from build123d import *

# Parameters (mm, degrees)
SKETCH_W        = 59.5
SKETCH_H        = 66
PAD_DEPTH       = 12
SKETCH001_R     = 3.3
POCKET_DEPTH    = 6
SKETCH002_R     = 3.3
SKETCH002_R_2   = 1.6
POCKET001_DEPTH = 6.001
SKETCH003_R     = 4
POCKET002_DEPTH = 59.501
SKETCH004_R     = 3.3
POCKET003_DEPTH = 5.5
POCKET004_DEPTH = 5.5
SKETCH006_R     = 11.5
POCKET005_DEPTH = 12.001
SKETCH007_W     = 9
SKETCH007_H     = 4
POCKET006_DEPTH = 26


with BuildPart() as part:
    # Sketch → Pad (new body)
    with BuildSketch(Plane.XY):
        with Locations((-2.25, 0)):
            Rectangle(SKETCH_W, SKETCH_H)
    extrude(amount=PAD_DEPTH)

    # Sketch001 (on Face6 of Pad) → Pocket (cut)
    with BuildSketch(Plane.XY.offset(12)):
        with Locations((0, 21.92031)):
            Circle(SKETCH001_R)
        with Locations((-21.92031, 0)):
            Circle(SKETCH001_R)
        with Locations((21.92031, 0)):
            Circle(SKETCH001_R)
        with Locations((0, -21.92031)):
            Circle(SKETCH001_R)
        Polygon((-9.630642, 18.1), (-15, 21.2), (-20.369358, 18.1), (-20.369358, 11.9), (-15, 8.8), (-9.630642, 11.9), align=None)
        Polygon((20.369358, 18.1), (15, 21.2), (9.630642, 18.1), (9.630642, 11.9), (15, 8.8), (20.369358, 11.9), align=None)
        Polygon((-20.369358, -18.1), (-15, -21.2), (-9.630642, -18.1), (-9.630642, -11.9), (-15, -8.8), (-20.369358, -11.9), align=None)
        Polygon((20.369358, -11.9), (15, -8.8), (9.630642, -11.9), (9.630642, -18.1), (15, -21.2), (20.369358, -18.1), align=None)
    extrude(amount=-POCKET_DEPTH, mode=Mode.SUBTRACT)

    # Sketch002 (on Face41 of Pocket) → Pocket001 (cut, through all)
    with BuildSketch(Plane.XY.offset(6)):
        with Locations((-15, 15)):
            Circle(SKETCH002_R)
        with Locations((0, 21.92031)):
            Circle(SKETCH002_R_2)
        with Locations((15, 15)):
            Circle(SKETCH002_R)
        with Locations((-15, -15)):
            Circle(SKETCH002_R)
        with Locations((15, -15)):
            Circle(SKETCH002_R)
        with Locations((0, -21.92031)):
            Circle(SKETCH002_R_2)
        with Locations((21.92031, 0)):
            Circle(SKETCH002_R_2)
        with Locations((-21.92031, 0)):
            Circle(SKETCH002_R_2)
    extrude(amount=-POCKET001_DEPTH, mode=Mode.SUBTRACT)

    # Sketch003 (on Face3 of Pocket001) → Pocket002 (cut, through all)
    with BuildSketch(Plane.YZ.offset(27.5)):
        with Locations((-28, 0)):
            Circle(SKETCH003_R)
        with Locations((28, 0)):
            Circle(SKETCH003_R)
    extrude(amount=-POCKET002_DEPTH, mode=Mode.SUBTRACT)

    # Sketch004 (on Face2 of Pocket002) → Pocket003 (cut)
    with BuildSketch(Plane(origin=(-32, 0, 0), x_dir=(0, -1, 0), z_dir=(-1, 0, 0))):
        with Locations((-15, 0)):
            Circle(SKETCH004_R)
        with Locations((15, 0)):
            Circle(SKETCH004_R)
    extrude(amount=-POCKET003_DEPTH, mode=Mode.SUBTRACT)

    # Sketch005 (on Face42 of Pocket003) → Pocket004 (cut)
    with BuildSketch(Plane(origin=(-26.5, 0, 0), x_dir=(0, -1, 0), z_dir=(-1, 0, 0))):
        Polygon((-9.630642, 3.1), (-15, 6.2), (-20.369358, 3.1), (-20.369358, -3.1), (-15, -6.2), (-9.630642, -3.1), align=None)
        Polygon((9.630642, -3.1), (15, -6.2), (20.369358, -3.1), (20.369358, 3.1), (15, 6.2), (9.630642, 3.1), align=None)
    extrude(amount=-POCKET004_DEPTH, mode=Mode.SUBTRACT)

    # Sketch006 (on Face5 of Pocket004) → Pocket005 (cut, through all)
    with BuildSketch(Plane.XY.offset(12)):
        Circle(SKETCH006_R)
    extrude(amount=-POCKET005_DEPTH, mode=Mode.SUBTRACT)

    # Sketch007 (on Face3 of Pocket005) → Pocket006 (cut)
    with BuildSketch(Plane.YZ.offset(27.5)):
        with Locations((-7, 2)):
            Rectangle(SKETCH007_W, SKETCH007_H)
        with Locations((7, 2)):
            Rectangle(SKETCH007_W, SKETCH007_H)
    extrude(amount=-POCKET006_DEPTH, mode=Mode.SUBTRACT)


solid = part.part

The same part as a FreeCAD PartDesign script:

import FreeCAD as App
import Part
import Sketcher
Q = App.Units.Quantity

doc = App.newDocument("Part")
body = doc.addObject("PartDesign::Body", "Body")

# Sketch on XY plane
sketch1 = body.newObject("Sketcher::SketchObject", "Sketch")
sketch1.AttachmentSupport = (doc.getObject("XY_Plane"), [""])
sketch1.MapMode = "FlatFace"
sketch1.addGeometry([
    Part.LineSegment(App.Vector(-32, 33, 0), App.Vector(-32, -33, 0)),
    Part.LineSegment(App.Vector(-32, -33, 0), App.Vector(28, -33, 0)),
    Part.LineSegment(App.Vector(28, -33, 0), App.Vector(28, 33, 0)),
    Part.LineSegment(App.Vector(28, 33, 0), App.Vector(-32, 33, 0)),
], False)
sketch1.addConstraint([
    Sketcher.Constraint("Coincident", 0, 2, 1, 1),
    Sketcher.Constraint("Coincident", 1, 2, 2, 1),
    Sketcher.Constraint("Coincident", 2, 2, 3, 1),
    Sketcher.Constraint("Coincident", 3, 2, 0, 1),
    Sketcher.Constraint("Vertical", 0),
    Sketcher.Constraint("Horizontal", 1),
    Sketcher.Constraint("Vertical", 2),
    Sketcher.Constraint("Horizontal", 3),
    Sketcher.Constraint("DistanceY", 0, 2, 0, 1, 66.0),
    Sketcher.Constraint("DistanceX", 1, 1, 1, 2, 59.5),
    Sketcher.Constraint("DistanceX", 0, 2, -1, 1, 32.0),
    Sketcher.Constraint("DistanceY", 0, 2, -1, 1, 33.0),
])
pad1 = body.newObject("PartDesign::Pad", "Pad")
pad1.Profile = sketch1
pad1.Length = 12

# Sketch on XY plane
sketch2 = body.newObject("Sketcher::SketchObject", "Sketch001")
sketch2.AttachmentSupport = (doc.getObject("XY_Plane"), [""])
sketch2.MapMode = "FlatFace"
sketch2.AttachmentOffset = App.Placement(App.Vector(0, 0, 12), App.Rotation())
sketch2.addGeometry([
    Part.Circle(App.Vector(0, 21.9, 0), App.Vector(0, 0, 1), 3.3),  # 0
    Part.Circle(App.Vector(-21.9, 0, 0), App.Vector(0, 0, 1), 3.3),  # 1
    Part.Circle(App.Vector(21.9, 0, 0), App.Vector(0, 0, 1), 3.3),  # 2
    Part.Circle(App.Vector(0, -21.9, 0), App.Vector(0, 0, 1), 3.3),  # 3
    Part.LineSegment(App.Vector(-9.6, 18.1, 0), App.Vector(-15, 21.2, 0)),  # 4
    Part.LineSegment(App.Vector(-15, 21.2, 0), App.Vector(-20.4, 18.1, 0)),  # 5
    Part.LineSegment(App.Vector(-20.4, 18.1, 0), App.Vector(-20.4, 11.9, 0)),  # 6
    Part.LineSegment(App.Vector(-20.4, 11.9, 0), App.Vector(-15, 8.8, 0)),  # 7
    Part.LineSegment(App.Vector(-15, 8.8, 0), App.Vector(-9.6, 11.9, 0)),  # 8
    Part.LineSegment(App.Vector(-9.6, 11.9, 0), App.Vector(-9.6, 18.1, 0)),  # 9
    Part.LineSegment(App.Vector(20.4, 18.1, 0), App.Vector(15, 21.2, 0)),  # 10
    Part.LineSegment(App.Vector(15, 21.2, 0), App.Vector(9.6, 18.1, 0)),  # 11
    Part.LineSegment(App.Vector(9.6, 18.1, 0), App.Vector(9.6, 11.9, 0)),  # 12
    Part.LineSegment(App.Vector(9.6, 11.9, 0), App.Vector(15, 8.8, 0)),  # 13
    Part.LineSegment(App.Vector(15, 8.8, 0), App.Vector(20.4, 11.9, 0)),  # 14
    Part.LineSegment(App.Vector(20.4, 11.9, 0), App.Vector(20.4, 18.1, 0)),  # 15
    Part.LineSegment(App.Vector(-20.4, -18.1, 0), App.Vector(-15, -21.2, 0)),  # 16
    Part.LineSegment(App.Vector(-15, -21.2, 0), App.Vector(-9.6, -18.1, 0)),  # 17
    Part.LineSegment(App.Vector(-9.6, -18.1, 0), App.Vector(-9.6, -11.9, 0)),  # 18
    Part.LineSegment(App.Vector(-9.6, -11.9, 0), App.Vector(-15, -8.8, 0)),  # 19
    Part.LineSegment(App.Vector(-15, -8.8, 0), App.Vector(-20.4, -11.9, 0)),  # 20
    Part.LineSegment(App.Vector(-20.4, -11.9, 0), App.Vector(-20.4, -18.1, 0)),  # 21
    Part.LineSegment(App.Vector(20.4, -11.9, 0), App.Vector(15, -8.8, 0)),  # 22
    Part.LineSegment(App.Vector(15, -8.8, 0), App.Vector(9.6, -11.9, 0)),  # 23
    Part.LineSegment(App.Vector(9.6, -11.9, 0), App.Vector(9.6, -18.1, 0)),  # 24
    Part.LineSegment(App.Vector(9.6, -18.1, 0), App.Vector(15, -21.2, 0)),  # 25
    Part.LineSegment(App.Vector(15, -21.2, 0), App.Vector(20.4, -18.1, 0)),  # 26
    Part.LineSegment(App.Vector(20.4, -18.1, 0), App.Vector(20.4, -11.9, 0)),  # 27
], False)
sketch2.addConstraint([
    Sketcher.Constraint("Coincident", 4, 2, 5, 1),
    Sketcher.Constraint("Coincident", 5, 2, 6, 1),
    Sketcher.Constraint("Coincident", 6, 2, 7, 1),
    Sketcher.Constraint("Coincident", 7, 2, 8, 1),
    Sketcher.Constraint("Coincident", 8, 2, 9, 1),
    Sketcher.Constraint("Coincident", 9, 2, 4, 1),
    Sketcher.Constraint("Coincident", 10, 2, 11, 1),
    Sketcher.Constraint("Coincident", 11, 2, 12, 1),
    Sketcher.Constraint("Coincident", 12, 2, 13, 1),
    Sketcher.Constraint("Coincident", 13, 2, 14, 1),
    Sketcher.Constraint("Coincident", 14, 2, 15, 1),
    Sketcher.Constraint("Coincident", 15, 2, 10, 1),
    Sketcher.Constraint("Coincident", 16, 2, 17, 1),
    Sketcher.Constraint("Coincident", 17, 2, 18, 1),
    Sketcher.Constraint("Coincident", 18, 2, 19, 1),
    Sketcher.Constraint("Coincident", 19, 2, 20, 1),
    Sketcher.Constraint("Coincident", 20, 2, 21, 1),
    Sketcher.Constraint("Coincident", 21, 2, 16, 1),
    Sketcher.Constraint("Coincident", 22, 2, 23, 1),
    Sketcher.Constraint("Coincident", 23, 2, 24, 1),
    Sketcher.Constraint("Coincident", 24, 2, 25, 1),
    Sketcher.Constraint("Coincident", 25, 2, 26, 1),
    Sketcher.Constraint("Coincident", 26, 2, 27, 1),
    Sketcher.Constraint("Coincident", 27, 2, 22, 1),
    Sketcher.Constraint("Vertical", 6),
    Sketcher.Constraint("Vertical", 9),
    Sketcher.Constraint("Vertical", 12),
    Sketcher.Constraint("Vertical", 15),
    Sketcher.Constraint("Vertical", 18),
    Sketcher.Constraint("Vertical", 21),
    Sketcher.Constraint("Vertical", 24),
    Sketcher.Constraint("Vertical", 27),
    Sketcher.Constraint("Equal", 0, 1),
    Sketcher.Constraint("Equal", 1, 2),
    Sketcher.Constraint("Equal", 2, 3),
    Sketcher.Constraint("Symmetric", 1, 3, 2, 3, -1, 1),
    Sketcher.Constraint("Symmetric", 0, 3, 3, 3, -1, 1),
    Sketcher.Constraint("Symmetric", 10, 2, 16, 2, -1, 1),
    Sketcher.Constraint("Symmetric", 11, 2, 17, 2, -1, 1),
    Sketcher.Constraint("Symmetric", 13, 2, 19, 2, -1, 1),
    Sketcher.Constraint("Symmetric", 14, 2, 20, 2, -1, 1),
    Sketcher.Constraint("Symmetric", 7, 2, 22, 2, -1, 1),
    Sketcher.Constraint("Symmetric", 8, 2, 23, 2, -1, 1),
    Sketcher.Constraint("Symmetric", 4, 2, 25, 2, -1, 1),
    Sketcher.Constraint("Symmetric", 5, 2, 26, 2, -1, 1),
    Sketcher.Constraint("Symmetric", 4, 2, 10, 2, -2),
    Sketcher.Constraint("Symmetric", 9, 2, 11, 2, -2),
    Sketcher.Constraint("Symmetric", 7, 2, 13, 2, -2),
    Sketcher.Constraint("Symmetric", 6, 2, 14, 2, -2),
    Sketcher.Constraint("PointOnObject", 0, 3, -2),
    Sketcher.Constraint("PointOnObject", 1, 3, -1),
    Sketcher.Constraint("Parallel", 4, 7),
    Sketcher.Constraint("Parallel", 5, 8),
    Sketcher.Constraint("Parallel", 7, 10),
    Sketcher.Constraint("Parallel", 8, 11),
    Sketcher.Constraint("Parallel", 10, 13),
    Sketcher.Constraint("Parallel", 13, 16),
    Sketcher.Constraint("Parallel", 16, 19),
    Sketcher.Constraint("Parallel", 19, 22),
    Sketcher.Constraint("Parallel", 22, 25),
    Sketcher.Constraint("Horizontal", 6, 2, 8, 2),
    Sketcher.Constraint("Horizontal", 5, 2, 9, 2),
    Sketcher.Constraint("Diameter", 0, 6.6),
    Sketcher.Constraint("Angle", 4, Q("150.000002 deg")),
    Sketcher.Constraint("DistanceY", 6, 2, 6, 1, 6.2),
    Sketcher.Constraint("DistanceX", 4, 2, -1, 1, 15.0),
    Sketcher.Constraint("DistanceY", 16, 2, 7, 2, 30.0),
    Sketcher.Constraint("Distance", 4, 6.2),
    Sketcher.Constraint("DistanceY", -1, 1, 0, 3, 21.92031),
    Sketcher.Constraint("DistanceX", 1, 3, -1, 1, 21.92031),
])
pocket1 = body.newObject("PartDesign::Pocket", "Pocket")
pocket1.Profile = sketch2
pocket1.Length = 6

# Sketch on XY plane
sketch3 = body.newObject("Sketcher::SketchObject", "Sketch002")
sketch3.AttachmentSupport = (doc.getObject("XY_Plane"), [""])
sketch3.MapMode = "FlatFace"
sketch3.AttachmentOffset = App.Placement(App.Vector(0, 0, 6), App.Rotation())
sketch3.addGeometry([
    Part.Circle(App.Vector(-15, 15, 0), App.Vector(0, 0, 1), 3.3),  # 0
    Part.Circle(App.Vector(0, 21.9, 0), App.Vector(0, 0, 1), 1.6),  # 1
    Part.Circle(App.Vector(15, 15, 0), App.Vector(0, 0, 1), 3.3),  # 2
    Part.Circle(App.Vector(-15, -15, 0), App.Vector(0, 0, 1), 3.3),  # 3
    Part.Circle(App.Vector(15, -15, 0), App.Vector(0, 0, 1), 3.3),  # 4
    Part.Circle(App.Vector(0, -21.9, 0), App.Vector(0, 0, 1), 1.6),  # 5
    Part.Circle(App.Vector(21.9, 0, 0), App.Vector(0, 0, 1), 1.6),  # 6
    Part.Circle(App.Vector(-21.9, 0, 0), App.Vector(0, 0, 1), 1.6),  # 7
], False)
sketch3.addConstraint([
    Sketcher.Constraint("Equal", 0, 2),
    Sketcher.Constraint("Equal", 2, 3),
    Sketcher.Constraint("Equal", 3, 4),
    Sketcher.Constraint("Equal", 1, 5),
    Sketcher.Constraint("Equal", 5, 6),
    Sketcher.Constraint("Equal", 6, 7),
    Sketcher.Constraint("Symmetric", 2, 3, 3, 3, -1, 1),
    Sketcher.Constraint("Symmetric", 0, 3, 4, 3, -1, 1),
    Sketcher.Constraint("Symmetric", 1, 3, 5, 3, -1, 1),
    Sketcher.Constraint("Symmetric", 6, 3, 7, 3, -1, 1),
    Sketcher.Constraint("Symmetric", 0, 3, 2, 3, -2),
    Sketcher.Constraint("PointOnObject", 1, 3, -2),
    Sketcher.Constraint("PointOnObject", 6, 3, -1),
    Sketcher.Constraint("Diameter", 0, 6.6),
    Sketcher.Constraint("Diameter", 1, 3.2),
    Sketcher.Constraint("DistanceX", 0, 3, -1, 1, 15.0),
    Sketcher.Constraint("DistanceY", -1, 1, 0, 3, 15.0),
    Sketcher.Constraint("DistanceY", -1, 1, 1, 3, 21.92031),
    Sketcher.Constraint("DistanceX", -1, 1, 6, 3, 21.92031),
])
pocket2 = body.newObject("PartDesign::Pocket", "Pocket001")
pocket2.Profile = sketch3
pocket2.Type = "ThroughAll"

# Sketch on YZ plane
sketch4 = body.newObject("Sketcher::SketchObject", "Sketch003")
sketch4.AttachmentSupport = (doc.getObject("YZ_Plane"), [""])
sketch4.MapMode = "FlatFace"
sketch4.AttachmentOffset = App.Placement(App.Vector(0, 0, 27.5), App.Rotation())
sketch4.addGeometry([
    Part.Circle(App.Vector(-28, 0, 0), App.Vector(0, 0, 1), 4),
    Part.Circle(App.Vector(28, 0, 0), App.Vector(0, 0, 1), 4),
], False)
sketch4.addConstraint([
    Sketcher.Constraint("Equal", 0, 1),
    Sketcher.Constraint("Symmetric", 0, 3, 1, 3, -1, 1),
    Sketcher.Constraint("PointOnObject", 0, 3, -1),
    Sketcher.Constraint("Diameter", 0, 8.0),
    Sketcher.Constraint("DistanceX", 0, 3, -1, 1, 28.0),
])
pocket3 = body.newObject("PartDesign::Pocket", "Pocket002")
pocket3.Profile = sketch4
pocket3.Type = "ThroughAll"

# Sketch on YZ plane
sketch5 = body.newObject("Sketcher::SketchObject", "Sketch004")
sketch5.AttachmentSupport = (doc.getObject("YZ_Plane"), [""])
sketch5.MapMode = "FlatFace"
sketch5.AttachmentOffset = App.Placement(App.Vector(0, 0, -32), App.Rotation())
sketch5.addGeometry([
    Part.Circle(App.Vector(15, 0, 0), App.Vector(0, 0, 1), 3.3),
    Part.Circle(App.Vector(-15, 0, 0), App.Vector(0, 0, 1), 3.3),
], False)
sketch5.addConstraint([
    Sketcher.Constraint("Equal", 0, 1),
    Sketcher.Constraint("Symmetric", 0, 3, 1, 3, -1, 1),
    Sketcher.Constraint("PointOnObject", 0, 3, -1),
    Sketcher.Constraint("Diameter", 0, 6.6),
    Sketcher.Constraint("DistanceX", -1, 1, 0, 3, 15.0),
])
pocket4 = body.newObject("PartDesign::Pocket", "Pocket003")
pocket4.Profile = sketch5
pocket4.Length = 5.5
pocket4.Reversed = True

# Sketch on YZ plane
sketch6 = body.newObject("Sketcher::SketchObject", "Sketch005")
sketch6.AttachmentSupport = (doc.getObject("YZ_Plane"), [""])
sketch6.MapMode = "FlatFace"
sketch6.AttachmentOffset = App.Placement(App.Vector(0, 0, -26.5), App.Rotation())
sketch6.addGeometry([
    Part.LineSegment(App.Vector(10, 3, 0), App.Vector(15, 6, 0)),  # 0
    Part.LineSegment(App.Vector(15, 6, 0), App.Vector(20, 3, 0)),  # 1
    Part.LineSegment(App.Vector(20, 3, 0), App.Vector(20, -3, 0)),  # 2
    Part.LineSegment(App.Vector(20, -3, 0), App.Vector(15, -6, 0)),  # 3
    Part.LineSegment(App.Vector(15, -6, 0), App.Vector(10, -3, 0)),  # 4
    Part.LineSegment(App.Vector(10, -3, 0), App.Vector(10, 3, 0)),  # 5
    Part.LineSegment(App.Vector(-10, -3, 0), App.Vector(-15, -6, 0)),  # 6
    Part.LineSegment(App.Vector(-15, -6, 0), App.Vector(-20, -3, 0)),  # 7
    Part.LineSegment(App.Vector(-20, -3, 0), App.Vector(-20, 3, 0)),  # 8
    Part.LineSegment(App.Vector(-20, 3, 0), App.Vector(-15, 6, 0)),  # 9
    Part.LineSegment(App.Vector(-15, 6, 0), App.Vector(-10, 3, 0)),  # 10
    Part.LineSegment(App.Vector(-10, 3, 0), App.Vector(-10, -3, 0)),  # 11
], False)
sketch6.addConstraint([
    Sketcher.Constraint("Coincident", 0, 2, 1, 1),
    Sketcher.Constraint("Coincident", 1, 2, 2, 1),
    Sketcher.Constraint("Coincident", 2, 2, 3, 1),
    Sketcher.Constraint("Coincident", 3, 2, 4, 1),
    Sketcher.Constraint("Coincident", 4, 2, 5, 1),
    Sketcher.Constraint("Coincident", 5, 2, 0, 1),
    Sketcher.Constraint("Coincident", 6, 2, 7, 1),
    Sketcher.Constraint("Coincident", 7, 2, 8, 1),
    Sketcher.Constraint("Coincident", 8, 2, 9, 1),
    Sketcher.Constraint("Coincident", 9, 2, 10, 1),
    Sketcher.Constraint("Coincident", 10, 2, 11, 1),
    Sketcher.Constraint("Coincident", 11, 2, 6, 1),
    Sketcher.Constraint("Vertical", 2),
    Sketcher.Constraint("Vertical", 5),
    Sketcher.Constraint("Vertical", 8),
    Sketcher.Constraint("Vertical", 11),
    Sketcher.Constraint("Symmetric", 0, 2, 6, 2, -1, 1),
    Sketcher.Constraint("Symmetric", 1, 2, 7, 2, -1, 1),
    Sketcher.Constraint("Symmetric", 3, 2, 9, 2, -1, 1),
    Sketcher.Constraint("Symmetric", 4, 2, 10, 2, -1, 1),
    Sketcher.Constraint("Symmetric", 3, 2, 6, 2, -2),
    Sketcher.Constraint("Parallel", 0, 3),
    Sketcher.Constraint("Parallel", 1, 4),
    Sketcher.Constraint("Parallel", 3, 6),
    Sketcher.Constraint("Parallel", 6, 9),
    Sketcher.Constraint("Horizontal", 2, 2, 4, 2),
    Sketcher.Constraint("Horizontal", 1, 2, 5, 2),
    Sketcher.Constraint("Angle", 0, Q("29.999998 deg")),
    Sketcher.Constraint("DistanceY", 2, 2, 2, 1, 6.2),
    Sketcher.Constraint("DistanceX", -1, 1, 0, 2, 15.0),
    Sketcher.Constraint("Distance", 0, 6.2),
])
pocket5 = body.newObject("PartDesign::Pocket", "Pocket004")
pocket5.Profile = sketch6
pocket5.Length = 5.5
pocket5.Reversed = True

# Sketch on XY plane
sketch7 = body.newObject("Sketcher::SketchObject", "Sketch006")
sketch7.AttachmentSupport = (doc.getObject("XY_Plane"), [""])
sketch7.MapMode = "FlatFace"
sketch7.AttachmentOffset = App.Placement(App.Vector(0, 0, 12), App.Rotation())
sketch7.addGeometry(Part.Circle(App.Vector(0, 0, 0), App.Vector(0, 0, 1), 12), False)
sketch7.addConstraint([
    Sketcher.Constraint("Coincident", 0, 3, -1, 1),
    Sketcher.Constraint("Diameter", 0, 23.0),
])
pocket6 = body.newObject("PartDesign::Pocket", "Pocket005")
pocket6.Profile = sketch7
pocket6.Type = "ThroughAll"

# Sketch on YZ plane
sketch8 = body.newObject("Sketcher::SketchObject", "Sketch007")
sketch8.AttachmentSupport = (doc.getObject("YZ_Plane"), [""])
sketch8.MapMode = "FlatFace"
sketch8.AttachmentOffset = App.Placement(App.Vector(0, 0, 27.5), App.Rotation())
sketch8.addGeometry([
    Part.LineSegment(App.Vector(-11.5, 4, 0), App.Vector(-11.5, 0, 0)),  # 0
    Part.LineSegment(App.Vector(-11.5, 0, 0), App.Vector(-2.5, 0, 0)),  # 1
    Part.LineSegment(App.Vector(-2.5, 0, 0), App.Vector(-2.5, 4, 0)),  # 2
    Part.LineSegment(App.Vector(-2.5, 4, 0), App.Vector(-11.5, 4, 0)),  # 3
    Part.LineSegment(App.Vector(2.5, 4, 0), App.Vector(2.5, 0, 0)),  # 4
    Part.LineSegment(App.Vector(2.5, 0, 0), App.Vector(11.5, 0, 0)),  # 5
    Part.LineSegment(App.Vector(11.5, 0, 0), App.Vector(11.5, 4, 0)),  # 6
    Part.LineSegment(App.Vector(11.5, 4, 0), App.Vector(2.5, 4, 0)),  # 7
], False)
sketch8.addConstraint([
    Sketcher.Constraint("Coincident", 0, 2, 1, 1),
    Sketcher.Constraint("Coincident", 1, 2, 2, 1),
    Sketcher.Constraint("Coincident", 2, 2, 3, 1),
    Sketcher.Constraint("Coincident", 3, 2, 0, 1),
    Sketcher.Constraint("Coincident", 4, 2, 5, 1),
    Sketcher.Constraint("Coincident", 5, 2, 6, 1),
    Sketcher.Constraint("Coincident", 6, 2, 7, 1),
    Sketcher.Constraint("Coincident", 7, 2, 4, 1),
    Sketcher.Constraint("Vertical", 0),
    Sketcher.Constraint("Horizontal", 1),
    Sketcher.Constraint("Vertical", 2),
    Sketcher.Constraint("Horizontal", 3),
    Sketcher.Constraint("Vertical", 4),
    Sketcher.Constraint("Horizontal", 5),
    Sketcher.Constraint("Vertical", 6),
    Sketcher.Constraint("Horizontal", 7),
    Sketcher.Constraint("Symmetric", 1, 2, 4, 2, -1, 1),
    Sketcher.Constraint("Symmetric", 0, 2, 5, 2, -2),
    Sketcher.Constraint("Horizontal", 3, 2, 6, 2),
    Sketcher.Constraint("DistanceX", 1, 1, 1, 2, 9.0),
    Sketcher.Constraint("DistanceY", 0, 2, 0, 1, 4.0),
    Sketcher.Constraint("DistanceX", 1, 2, 4, 2, 5.0),
])
pocket7 = body.newObject("PartDesign::Pocket", "Pocket006")
pocket7.Profile = sketch8
pocket7.Length = 26

doc.recompute()
